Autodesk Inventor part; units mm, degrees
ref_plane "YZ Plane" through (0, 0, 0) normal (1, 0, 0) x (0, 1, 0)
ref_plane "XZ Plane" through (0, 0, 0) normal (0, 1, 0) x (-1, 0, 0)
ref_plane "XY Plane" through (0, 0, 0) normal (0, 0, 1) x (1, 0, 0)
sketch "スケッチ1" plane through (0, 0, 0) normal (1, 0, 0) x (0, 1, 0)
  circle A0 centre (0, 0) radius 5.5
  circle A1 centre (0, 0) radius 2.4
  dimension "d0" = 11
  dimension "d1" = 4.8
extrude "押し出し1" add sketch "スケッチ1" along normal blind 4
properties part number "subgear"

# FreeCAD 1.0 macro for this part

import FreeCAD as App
import Part
import Sketcher
Q = App.Units.Quantity

doc = App.newDocument("Part")
params = doc.addObject("Spreadsheet::Sheet", "Params")
for row, (alias, value) in enumerate([
    ("sketch1_diameter", "11 mm"),
    ("sketch1_diameter2", "4.8 mm"),
    ("pad1_length", "4 mm"),
], start=1):
    params.set(f"A{row}", alias)
    params.set(f"B{row}", "=" + value)
    params.setAlias(f"B{row}", alias)

body = doc.addObject("PartDesign::Body", "Body")

# Sketch on YZ plane
sketch1 = doc.addObject("Sketcher::SketchObject", "Sketch")
body.addObject(sketch1)
sketch1.AttachmentSupport = (doc.YZ_Plane, [""])
sketch1.MapMode = "FlatFace"
sketch1.addGeometry([
    Part.Circle(App.Vector(0, 0, 0), App.Vector(0, 0, 1), 5.5),
    Part.Circle(App.Vector(0, 0, 0), App.Vector(0, 0, 1), 2.4),
], False)
sketch1.addConstraint([
    Sketcher.Constraint("Coincident", 0, 3, -1, 1),
    Sketcher.Constraint("Coincident", 1, 3, -1, 1),
    Sketcher.Constraint("Diameter", 0, Q("11 mm")),
    Sketcher.Constraint("Diameter", 1, Q("4.8 mm")),
])
sketch1.setExpression("Constraints[2]", "Params.sketch1_diameter")
sketch1.setExpression("Constraints[3]", "Params.sketch1_diameter2")
pad1 = doc.addObject("PartDesign::Pad", "Pad")
body.addObject(pad1)
pad1.Profile = sketch1
pad1.setExpression("Length", "Params.pad1_length")

doc.recompute()
